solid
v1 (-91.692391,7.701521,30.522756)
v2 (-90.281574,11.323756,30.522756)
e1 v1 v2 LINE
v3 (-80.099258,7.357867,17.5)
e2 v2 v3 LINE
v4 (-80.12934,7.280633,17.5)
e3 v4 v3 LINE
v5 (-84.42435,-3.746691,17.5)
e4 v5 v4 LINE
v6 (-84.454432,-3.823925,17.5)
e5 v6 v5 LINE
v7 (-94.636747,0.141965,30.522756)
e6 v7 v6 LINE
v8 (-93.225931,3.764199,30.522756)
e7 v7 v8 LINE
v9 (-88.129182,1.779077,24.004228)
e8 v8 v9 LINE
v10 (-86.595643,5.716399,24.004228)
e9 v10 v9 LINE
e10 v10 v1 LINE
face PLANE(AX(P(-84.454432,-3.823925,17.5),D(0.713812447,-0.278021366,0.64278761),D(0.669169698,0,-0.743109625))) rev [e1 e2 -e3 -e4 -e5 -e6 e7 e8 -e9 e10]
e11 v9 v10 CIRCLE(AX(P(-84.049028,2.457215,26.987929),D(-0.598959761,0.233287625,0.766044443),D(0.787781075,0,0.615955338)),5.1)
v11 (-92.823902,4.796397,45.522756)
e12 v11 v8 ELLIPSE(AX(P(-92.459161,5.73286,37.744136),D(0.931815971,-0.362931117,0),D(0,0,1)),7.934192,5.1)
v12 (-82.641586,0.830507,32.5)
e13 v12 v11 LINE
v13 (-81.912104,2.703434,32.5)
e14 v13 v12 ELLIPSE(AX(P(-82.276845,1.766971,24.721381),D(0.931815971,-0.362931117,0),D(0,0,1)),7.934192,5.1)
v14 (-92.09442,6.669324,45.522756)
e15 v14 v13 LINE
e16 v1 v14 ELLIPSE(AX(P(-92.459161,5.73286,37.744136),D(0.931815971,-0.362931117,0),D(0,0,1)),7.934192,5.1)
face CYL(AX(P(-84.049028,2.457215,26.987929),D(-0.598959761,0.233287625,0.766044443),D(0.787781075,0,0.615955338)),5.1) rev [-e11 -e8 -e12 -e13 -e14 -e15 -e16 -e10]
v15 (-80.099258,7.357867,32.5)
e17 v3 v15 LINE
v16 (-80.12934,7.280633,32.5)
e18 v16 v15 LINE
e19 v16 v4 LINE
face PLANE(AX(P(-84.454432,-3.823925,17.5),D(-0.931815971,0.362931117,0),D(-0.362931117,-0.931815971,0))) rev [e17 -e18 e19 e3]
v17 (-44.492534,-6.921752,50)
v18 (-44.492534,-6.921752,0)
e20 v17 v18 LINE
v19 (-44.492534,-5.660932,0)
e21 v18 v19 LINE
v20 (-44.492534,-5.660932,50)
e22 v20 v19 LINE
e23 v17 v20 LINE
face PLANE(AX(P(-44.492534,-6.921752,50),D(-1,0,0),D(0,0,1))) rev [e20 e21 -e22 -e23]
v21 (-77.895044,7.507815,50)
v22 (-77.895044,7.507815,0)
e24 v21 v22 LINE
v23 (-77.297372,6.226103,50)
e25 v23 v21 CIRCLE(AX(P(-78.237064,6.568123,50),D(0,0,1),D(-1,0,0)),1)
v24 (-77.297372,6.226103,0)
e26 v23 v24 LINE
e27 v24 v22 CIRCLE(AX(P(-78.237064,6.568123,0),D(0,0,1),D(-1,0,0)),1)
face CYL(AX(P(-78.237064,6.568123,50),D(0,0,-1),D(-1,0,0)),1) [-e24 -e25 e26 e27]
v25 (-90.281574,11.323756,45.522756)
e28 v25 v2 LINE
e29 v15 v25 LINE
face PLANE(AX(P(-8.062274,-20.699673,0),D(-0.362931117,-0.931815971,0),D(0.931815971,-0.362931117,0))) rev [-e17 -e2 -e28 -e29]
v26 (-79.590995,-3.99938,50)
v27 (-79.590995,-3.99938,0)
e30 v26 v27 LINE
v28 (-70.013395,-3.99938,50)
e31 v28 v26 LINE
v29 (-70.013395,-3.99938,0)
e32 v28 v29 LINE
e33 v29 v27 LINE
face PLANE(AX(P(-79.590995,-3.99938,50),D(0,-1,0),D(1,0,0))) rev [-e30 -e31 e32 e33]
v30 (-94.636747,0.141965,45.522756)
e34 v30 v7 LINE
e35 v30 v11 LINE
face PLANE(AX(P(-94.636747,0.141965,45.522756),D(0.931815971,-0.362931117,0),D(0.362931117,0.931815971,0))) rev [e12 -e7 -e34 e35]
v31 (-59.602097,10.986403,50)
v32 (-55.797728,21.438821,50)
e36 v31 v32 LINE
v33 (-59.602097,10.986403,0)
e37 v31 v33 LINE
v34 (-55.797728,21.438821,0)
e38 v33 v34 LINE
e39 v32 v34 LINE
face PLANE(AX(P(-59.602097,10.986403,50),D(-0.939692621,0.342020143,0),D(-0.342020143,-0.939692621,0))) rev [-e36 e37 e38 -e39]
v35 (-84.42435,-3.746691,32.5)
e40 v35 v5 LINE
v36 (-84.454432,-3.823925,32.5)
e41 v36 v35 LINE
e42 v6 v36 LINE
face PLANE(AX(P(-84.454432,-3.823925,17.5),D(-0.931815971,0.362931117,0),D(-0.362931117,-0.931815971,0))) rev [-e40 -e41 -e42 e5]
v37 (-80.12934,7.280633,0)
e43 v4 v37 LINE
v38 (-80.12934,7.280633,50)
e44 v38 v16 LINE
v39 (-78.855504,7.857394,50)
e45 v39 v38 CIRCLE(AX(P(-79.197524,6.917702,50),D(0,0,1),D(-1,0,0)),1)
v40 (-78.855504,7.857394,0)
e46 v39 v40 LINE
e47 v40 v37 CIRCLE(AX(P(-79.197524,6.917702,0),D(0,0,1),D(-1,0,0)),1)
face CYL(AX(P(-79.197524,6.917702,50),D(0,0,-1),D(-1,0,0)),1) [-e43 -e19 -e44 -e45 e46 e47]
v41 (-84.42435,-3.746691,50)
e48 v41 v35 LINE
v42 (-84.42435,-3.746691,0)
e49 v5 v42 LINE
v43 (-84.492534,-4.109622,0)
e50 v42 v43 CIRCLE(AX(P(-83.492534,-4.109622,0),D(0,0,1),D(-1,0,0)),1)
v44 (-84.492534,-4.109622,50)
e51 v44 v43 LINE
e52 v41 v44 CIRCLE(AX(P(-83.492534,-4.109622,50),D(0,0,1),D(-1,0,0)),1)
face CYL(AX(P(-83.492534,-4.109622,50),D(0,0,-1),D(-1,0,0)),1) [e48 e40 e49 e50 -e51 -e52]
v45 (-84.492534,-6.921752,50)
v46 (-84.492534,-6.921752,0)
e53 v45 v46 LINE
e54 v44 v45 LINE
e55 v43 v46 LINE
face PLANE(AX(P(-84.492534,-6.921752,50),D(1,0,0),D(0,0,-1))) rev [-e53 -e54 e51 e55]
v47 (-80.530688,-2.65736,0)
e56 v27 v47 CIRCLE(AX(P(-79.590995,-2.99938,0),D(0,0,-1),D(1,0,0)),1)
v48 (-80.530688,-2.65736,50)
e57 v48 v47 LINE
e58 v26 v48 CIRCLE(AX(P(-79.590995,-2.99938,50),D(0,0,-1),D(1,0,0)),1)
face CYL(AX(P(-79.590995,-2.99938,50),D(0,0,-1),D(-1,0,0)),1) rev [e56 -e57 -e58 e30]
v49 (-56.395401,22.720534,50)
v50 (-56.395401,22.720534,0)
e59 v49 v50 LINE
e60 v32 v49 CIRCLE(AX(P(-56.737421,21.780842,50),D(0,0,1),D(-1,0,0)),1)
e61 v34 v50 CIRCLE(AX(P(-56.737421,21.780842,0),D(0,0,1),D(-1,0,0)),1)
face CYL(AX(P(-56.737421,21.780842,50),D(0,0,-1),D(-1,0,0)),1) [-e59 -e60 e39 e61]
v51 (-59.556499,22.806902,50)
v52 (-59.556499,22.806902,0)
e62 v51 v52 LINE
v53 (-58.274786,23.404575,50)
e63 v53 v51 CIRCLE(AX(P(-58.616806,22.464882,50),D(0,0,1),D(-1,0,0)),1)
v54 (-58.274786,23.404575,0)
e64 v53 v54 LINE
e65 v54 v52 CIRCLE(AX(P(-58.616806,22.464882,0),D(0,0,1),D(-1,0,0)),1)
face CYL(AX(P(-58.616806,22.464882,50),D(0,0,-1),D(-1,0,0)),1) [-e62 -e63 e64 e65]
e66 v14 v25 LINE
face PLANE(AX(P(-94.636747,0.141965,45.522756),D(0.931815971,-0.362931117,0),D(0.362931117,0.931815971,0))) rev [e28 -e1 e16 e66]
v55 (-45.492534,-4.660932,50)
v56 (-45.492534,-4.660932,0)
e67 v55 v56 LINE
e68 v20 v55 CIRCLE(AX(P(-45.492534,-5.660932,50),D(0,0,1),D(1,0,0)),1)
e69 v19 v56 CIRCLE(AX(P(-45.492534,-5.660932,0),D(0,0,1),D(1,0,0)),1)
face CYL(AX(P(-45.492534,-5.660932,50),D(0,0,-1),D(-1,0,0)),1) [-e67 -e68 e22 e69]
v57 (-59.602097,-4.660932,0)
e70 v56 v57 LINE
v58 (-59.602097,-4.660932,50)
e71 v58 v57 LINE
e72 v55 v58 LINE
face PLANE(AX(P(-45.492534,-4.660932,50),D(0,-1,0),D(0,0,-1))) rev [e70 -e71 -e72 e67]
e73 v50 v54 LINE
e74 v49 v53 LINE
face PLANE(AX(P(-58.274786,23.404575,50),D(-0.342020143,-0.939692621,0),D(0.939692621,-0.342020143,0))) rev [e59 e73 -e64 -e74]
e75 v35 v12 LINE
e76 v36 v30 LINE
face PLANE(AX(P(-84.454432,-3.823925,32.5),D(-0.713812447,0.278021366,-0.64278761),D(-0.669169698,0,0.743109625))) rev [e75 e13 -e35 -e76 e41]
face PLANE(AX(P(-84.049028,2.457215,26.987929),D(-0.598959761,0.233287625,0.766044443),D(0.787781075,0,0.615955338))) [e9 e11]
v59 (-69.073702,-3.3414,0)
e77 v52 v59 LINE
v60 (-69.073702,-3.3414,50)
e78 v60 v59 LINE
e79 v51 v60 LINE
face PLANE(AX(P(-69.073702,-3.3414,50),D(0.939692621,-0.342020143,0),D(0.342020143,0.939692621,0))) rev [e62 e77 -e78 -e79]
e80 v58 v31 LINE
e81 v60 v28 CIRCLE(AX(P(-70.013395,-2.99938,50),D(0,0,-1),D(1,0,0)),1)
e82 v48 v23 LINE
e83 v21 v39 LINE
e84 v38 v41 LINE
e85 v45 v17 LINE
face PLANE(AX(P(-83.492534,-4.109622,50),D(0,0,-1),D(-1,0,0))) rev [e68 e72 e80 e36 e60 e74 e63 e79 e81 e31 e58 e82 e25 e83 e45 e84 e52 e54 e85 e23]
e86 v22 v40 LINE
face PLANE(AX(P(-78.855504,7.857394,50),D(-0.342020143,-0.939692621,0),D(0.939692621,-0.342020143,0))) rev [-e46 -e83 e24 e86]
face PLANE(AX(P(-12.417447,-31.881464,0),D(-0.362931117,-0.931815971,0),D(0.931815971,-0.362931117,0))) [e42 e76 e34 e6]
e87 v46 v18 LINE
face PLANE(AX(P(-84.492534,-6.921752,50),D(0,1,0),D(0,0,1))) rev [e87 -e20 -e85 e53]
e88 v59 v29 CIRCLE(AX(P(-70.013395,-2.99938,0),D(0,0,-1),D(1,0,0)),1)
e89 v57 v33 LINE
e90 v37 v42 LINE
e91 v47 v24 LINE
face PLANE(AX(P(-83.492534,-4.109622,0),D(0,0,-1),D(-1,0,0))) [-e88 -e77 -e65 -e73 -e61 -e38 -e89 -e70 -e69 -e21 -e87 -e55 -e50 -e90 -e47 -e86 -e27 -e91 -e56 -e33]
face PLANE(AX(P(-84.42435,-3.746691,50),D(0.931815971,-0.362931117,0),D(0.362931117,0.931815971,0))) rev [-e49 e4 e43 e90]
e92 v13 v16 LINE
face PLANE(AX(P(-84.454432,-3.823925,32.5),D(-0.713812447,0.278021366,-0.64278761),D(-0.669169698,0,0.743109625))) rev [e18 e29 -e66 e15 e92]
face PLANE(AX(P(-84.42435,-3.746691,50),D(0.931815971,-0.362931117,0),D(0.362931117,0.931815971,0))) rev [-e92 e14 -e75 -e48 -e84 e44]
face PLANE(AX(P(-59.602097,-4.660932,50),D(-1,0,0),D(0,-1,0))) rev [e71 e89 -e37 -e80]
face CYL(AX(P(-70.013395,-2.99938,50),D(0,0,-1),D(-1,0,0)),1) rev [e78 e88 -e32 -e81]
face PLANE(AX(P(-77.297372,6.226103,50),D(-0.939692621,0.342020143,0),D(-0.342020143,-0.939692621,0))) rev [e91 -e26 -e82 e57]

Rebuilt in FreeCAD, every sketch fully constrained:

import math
import FreeCAD as App
import Part
import Sketcher
from FreeCAD import Vector
Q = App.Units.Quantity


def add_polygon(sketch, points):
    """Adds a closed chain of lines whose ends are joined by coincident constraints."""
    first, n = sketch.GeometryCount, len(points)
    for a, b in zip(points, points[1:] + points[:1]):
        sketch.addGeometry(Part.LineSegment(App.Vector(*a, 0), App.Vector(*b, 0)), False)
    for i in range(n):
        sketch.addConstraint(Sketcher.Constraint("Coincident", first + i, 2, first + (i + 1) % n, 1))

doc = App.newDocument("Part")
body = doc.addObject("PartDesign::Body", "Body")

# Sketch on XY plane
sketch1 = body.newObject("Sketcher::SketchObject", "Sketch")
sketch1.AttachmentSupport = (doc.getObject("XY_Plane"), [""])
sketch1.MapMode = "FlatFace"
sketch1.addGeometry(Part.LineSegment(Vector(-84.49, -6.92, 0), Vector(-44.49, -6.92, 0)), False)
sketch1.addGeometry(Part.LineSegment(Vector(-44.49, -6.92, 0), Vector(-44.49, -5.66, 0)), False)
sketch1.addGeometry(Part.ArcOfCircle(Part.Circle(Vector(-45.49, -5.66, 0), Vector(0, 0, 1), 1), math.radians(0), math.radians(90)), False)
sketch1.addGeometry(Part.LineSegment(Vector(-45.49, -4.66, 0), Vector(-59.6, -4.66, 0)), False)
sketch1.addGeometry(Part.LineSegment(Vector(-59.6, -4.66, 0), Vector(-59.6, 10.99, 0)), False)
sketch1.addGeometry(Part.LineSegment(Vector(-59.6, 10.99, 0), Vector(-55.8, 21.44, 0)), False)
sketch1.addGeometry(Part.ArcOfCircle(Part.Circle(Vector(-56.74, 21.78, 0), Vector(0, 0, 1), 1), math.radians(-20), math.radians(70)), False)
sketch1.addGeometry(Part.LineSegment(Vector(-56.4, 22.72, 0), Vector(-58.27, 23.4, 0)), False)
sketch1.addGeometry(Part.ArcOfCircle(Part.Circle(Vector(-58.62, 22.46, 0), Vector(0, 0, 1), 1), math.radians(70), math.radians(160)), False)
sketch1.addGeometry(Part.LineSegment(Vector(-59.56, 22.81, 0), Vector(-69.07, -3.34, 0)), False)
sketch1.addGeometry(Part.ArcOfCircle(Part.Circle(Vector(-70.01, -3, 0), Vector(0, 0, 1), 1), math.radians(-90), math.radians(-20)), False)
sketch1.addGeometry(Part.LineSegment(Vector(-70.01, -4, 0), Vector(-79.59, -4, 0)), False)
sketch1.addGeometry(Part.ArcOfCircle(Part.Circle(Vector(-79.59, -3, 0), Vector(0, 0, 1), 1), math.radians(160), math.radians(270)), False)
sketch1.addGeometry(Part.LineSegment(Vector(-80.53, -2.66, 0), Vector(-77.3, 6.23, 0)), False)
sketch1.addGeometry(Part.ArcOfCircle(Part.Circle(Vector(-78.24, 6.57, 0), Vector(0, 0, 1), 1), math.radians(-20), math.radians(70)), False)
sketch1.addGeometry(Part.LineSegment(Vector(-77.9, 7.51, 0), Vector(-78.86, 7.86, 0)), False)
sketch1.addGeometry(Part.ArcOfCircle(Part.Circle(Vector(-79.2, 6.92, 0), Vector(0, 0, 1), 1), math.radians(70), math.radians(159)), False)
sketch1.addGeometry(Part.LineSegment(Vector(-80.13, 7.28, 0), Vector(-84.42, -3.75, 0)), False)
sketch1.addGeometry(Part.ArcOfCircle(Part.Circle(Vector(-83.49, -4.11, 0), Vector(0, 0, 1), 1), math.radians(159), math.radians(180)), False)
sketch1.addGeometry(Part.LineSegment(Vector(-84.49, -4.11, 0), Vector(-84.49, -6.92, 0)), False)
sketch1.addConstraint(Sketcher.Constraint("Coincident", 0, 2, 1, 1))
sketch1.addConstraint(Sketcher.Constraint("Tangent", 1, 2, 2, 1))
sketch1.addConstraint(Sketcher.Constraint("Tangent", 2, 2, 3, 1))
sketch1.addConstraint(Sketcher.Constraint("Coincident", 3, 2, 4, 1))
sketch1.addConstraint(Sketcher.Constraint("Coincident", 4, 2, 5, 1))
sketch1.addConstraint(Sketcher.Constraint("Tangent", 5, 2, 6, 1))
sketch1.addConstraint(Sketcher.Constraint("Tangent", 6, 2, 7, 1))
sketch1.addConstraint(Sketcher.Constraint("Tangent", 7, 2, 8, 1))
sketch1.addConstraint(Sketcher.Constraint("Tangent", 8, 2, 9, 1))
sketch1.addConstraint(Sketcher.Constraint("Tangent", 9, 2, 10, 2))
sketch1.addConstraint(Sketcher.Constraint("Tangent", 10, 1, 11, 1))
sketch1.addConstraint(Sketcher.Constraint("Tangent", 11, 2, 12, 2))
sketch1.addConstraint(Sketcher.Constraint("Tangent", 12, 1, 13, 1))
sketch1.addConstraint(Sketcher.Constraint("Tangent", 13, 2, 14, 1))
sketch1.addConstraint(Sketcher.Constraint("Tangent", 14, 2, 15, 1))
sketch1.addConstraint(Sketcher.Constraint("Tangent", 15, 2, 16, 1))
sketch1.addConstraint(Sketcher.Constraint("Tangent", 16, 2, 17, 1))
sketch1.addConstraint(Sketcher.Constraint("Tangent", 17, 2, 18, 1))
sketch1.addConstraint(Sketcher.Constraint("Tangent", 18, 2, 19, 1))
sketch1.addConstraint(Sketcher.Constraint("Coincident", 19, 2, 0, 1))
sketch1.addConstraint(Sketcher.Constraint("Horizontal", 0))
sketch1.addConstraint(Sketcher.Constraint("Vertical", 1))
sketch1.addConstraint(Sketcher.Constraint("Horizontal", 3))
sketch1.addConstraint(Sketcher.Constraint("Vertical", 4))
sketch1.addConstraint(Sketcher.Constraint("Horizontal", 11))
sketch1.addConstraint(Sketcher.Constraint("Vertical", 19))
sketch1.addConstraint(Sketcher.Constraint("Equal", 2, 6))
sketch1.addConstraint(Sketcher.Constraint("Equal", 6, 8))
sketch1.addConstraint(Sketcher.Constraint("Equal", 8, 10))
sketch1.addConstraint(Sketcher.Constraint("Equal", 10, 12))
sketch1.addConstraint(Sketcher.Constraint("Equal", 12, 14))
sketch1.addConstraint(Sketcher.Constraint("Equal", 14, 16))
sketch1.addConstraint(Sketcher.Constraint("Equal", 16, 18))
sketch1.addConstraint(Sketcher.Constraint("Perpendicular", 5, 7))
sketch1.addConstraint(Sketcher.Constraint("Perpendicular", 7, 9))
sketch1.addConstraint(Sketcher.Constraint("Parallel", 9, 13))
sketch1.addConstraint(Sketcher.Constraint("Perpendicular", 13, 15))
sketch1.addConstraint(Sketcher.Constraint("Radius", 2, 1.0))
sketch1.addConstraint(Sketcher.Constraint("DistanceX", 0, 1, 0, 2, 40.0))
sketch1.addConstraint(Sketcher.Constraint("Angle", 5, Q("70 deg")))
sketch1.addConstraint(Sketcher.Constraint("Distance", 7, 2.0))
sketch1.addConstraint(Sketcher.Constraint("DistanceX", 11, 2, 11, 1, 9.5776))
sketch1.addConstraint(Sketcher.Constraint("Distance", 15, 1.0221))
sketch1.addConstraint(Sketcher.Constraint("DistanceY", 1, 1, 1, 2, 1.26082))
sketch1.addConstraint(Sketcher.Constraint("DistanceY", 19, 2, 19, 1, 2.81213))
sketch1.addConstraint(Sketcher.Constraint("DistanceY", -1, 1, 16, 3, 6.917702))
sketch1.addConstraint(Sketcher.Constraint("DistanceX", 6, 2, -1, 1, 56.395401))
sketch1.addConstraint(Sketcher.Constraint("DistanceY", 9, 2, -1, 1, 3.3414))
sketch1.addConstraint(Sketcher.Constraint("DistanceY", 14, 3, 5, 2, 14.870699))
sketch1.addConstraint(Sketcher.Constraint("Distance", 5, 11.123231))
sketch1.addConstraint(Sketcher.Constraint("Distance", 17, 11.834229))
sketch1.addConstraint(Sketcher.Constraint("DistanceX", 3, 2, 3, 1, 14.109563))
pad1 = body.newObject("PartDesign::Pad", "Pad")
pad1.Profile = sketch1
pad1.Length = 50

# Sketch on an angled plane
sketch2 = body.newObject("Sketcher::SketchObject", "Sketch001")
sketch2.Placement = App.Placement(Vector(-12.054516, -30.949648, 0), App.Rotation(Vector(0, 0, 1), Vector(-0.931815971, 0.362931117, 0), Vector(-0.362931117, -0.931815971, 0), "ZXY"))
add_polygon(sketch2, [(31, 88), (18, 77), (32, 77), (46, 88)])  # lines 0-3
sketch2.addConstraint(Sketcher.Constraint("Horizontal", 1))
sketch2.addConstraint(Sketcher.Constraint("Horizontal", 3))
sketch2.addConstraint(Sketcher.Constraint("Parallel", 0, 2))
sketch2.addConstraint(Sketcher.Constraint("DistanceX", 1, 1, 1, 2, 15.0))
sketch2.addConstraint(Sketcher.Constraint("Angle", 0, Q("-140 deg")))
sketch2.addConstraint(Sketcher.Constraint("Distance", 0, 17.0))
sketch2.addConstraint(Sketcher.Constraint("DistanceX", -1, 1, 0, 2, 17.5))
sketch2.addConstraint(Sketcher.Constraint("DistanceY", -1, 1, 0, 2, 77.308167))
pad2 = body.newObject("PartDesign::Pad", "Pad001")
pad2.Profile = sketch2
pad2.Type = "TwoLengths"
pad2.Length = 1
pad2.Length2 = 11

# Sketch on an angled plane
sketch3 = body.newObject("Sketcher::SketchObject", "Sketch002")
sketch3.Placement = App.Placement(Vector(-54.858231, 21.366621, 70.161379), App.Rotation(Vector(0.800779124, 0.174492436, 0.572979219), Vector(0, 0.956623894, -0.291325808), Vector(-0.598959761, 0.233287625, 0.766044443), "ZXY"))
sketch3.addGeometry(Part.Circle(Vector(-51, -6, 0), Vector(0, 0, 1), 5), False)
sketch3.addConstraint(Sketcher.Constraint("Diameter", 0, 10.2))
sketch3.addConstraint(Sketcher.Constraint("DistanceX", 0, 3, -1, 1, 51.412419))
sketch3.addConstraint(Sketcher.Constraint("DistanceY", 0, 3, -1, 1, 5.51165))
pocket1 = body.newObject("PartDesign::Pocket", "Pocket")
pocket1.Profile = sketch3
pocket1.Length = 20

doc.recompute()
